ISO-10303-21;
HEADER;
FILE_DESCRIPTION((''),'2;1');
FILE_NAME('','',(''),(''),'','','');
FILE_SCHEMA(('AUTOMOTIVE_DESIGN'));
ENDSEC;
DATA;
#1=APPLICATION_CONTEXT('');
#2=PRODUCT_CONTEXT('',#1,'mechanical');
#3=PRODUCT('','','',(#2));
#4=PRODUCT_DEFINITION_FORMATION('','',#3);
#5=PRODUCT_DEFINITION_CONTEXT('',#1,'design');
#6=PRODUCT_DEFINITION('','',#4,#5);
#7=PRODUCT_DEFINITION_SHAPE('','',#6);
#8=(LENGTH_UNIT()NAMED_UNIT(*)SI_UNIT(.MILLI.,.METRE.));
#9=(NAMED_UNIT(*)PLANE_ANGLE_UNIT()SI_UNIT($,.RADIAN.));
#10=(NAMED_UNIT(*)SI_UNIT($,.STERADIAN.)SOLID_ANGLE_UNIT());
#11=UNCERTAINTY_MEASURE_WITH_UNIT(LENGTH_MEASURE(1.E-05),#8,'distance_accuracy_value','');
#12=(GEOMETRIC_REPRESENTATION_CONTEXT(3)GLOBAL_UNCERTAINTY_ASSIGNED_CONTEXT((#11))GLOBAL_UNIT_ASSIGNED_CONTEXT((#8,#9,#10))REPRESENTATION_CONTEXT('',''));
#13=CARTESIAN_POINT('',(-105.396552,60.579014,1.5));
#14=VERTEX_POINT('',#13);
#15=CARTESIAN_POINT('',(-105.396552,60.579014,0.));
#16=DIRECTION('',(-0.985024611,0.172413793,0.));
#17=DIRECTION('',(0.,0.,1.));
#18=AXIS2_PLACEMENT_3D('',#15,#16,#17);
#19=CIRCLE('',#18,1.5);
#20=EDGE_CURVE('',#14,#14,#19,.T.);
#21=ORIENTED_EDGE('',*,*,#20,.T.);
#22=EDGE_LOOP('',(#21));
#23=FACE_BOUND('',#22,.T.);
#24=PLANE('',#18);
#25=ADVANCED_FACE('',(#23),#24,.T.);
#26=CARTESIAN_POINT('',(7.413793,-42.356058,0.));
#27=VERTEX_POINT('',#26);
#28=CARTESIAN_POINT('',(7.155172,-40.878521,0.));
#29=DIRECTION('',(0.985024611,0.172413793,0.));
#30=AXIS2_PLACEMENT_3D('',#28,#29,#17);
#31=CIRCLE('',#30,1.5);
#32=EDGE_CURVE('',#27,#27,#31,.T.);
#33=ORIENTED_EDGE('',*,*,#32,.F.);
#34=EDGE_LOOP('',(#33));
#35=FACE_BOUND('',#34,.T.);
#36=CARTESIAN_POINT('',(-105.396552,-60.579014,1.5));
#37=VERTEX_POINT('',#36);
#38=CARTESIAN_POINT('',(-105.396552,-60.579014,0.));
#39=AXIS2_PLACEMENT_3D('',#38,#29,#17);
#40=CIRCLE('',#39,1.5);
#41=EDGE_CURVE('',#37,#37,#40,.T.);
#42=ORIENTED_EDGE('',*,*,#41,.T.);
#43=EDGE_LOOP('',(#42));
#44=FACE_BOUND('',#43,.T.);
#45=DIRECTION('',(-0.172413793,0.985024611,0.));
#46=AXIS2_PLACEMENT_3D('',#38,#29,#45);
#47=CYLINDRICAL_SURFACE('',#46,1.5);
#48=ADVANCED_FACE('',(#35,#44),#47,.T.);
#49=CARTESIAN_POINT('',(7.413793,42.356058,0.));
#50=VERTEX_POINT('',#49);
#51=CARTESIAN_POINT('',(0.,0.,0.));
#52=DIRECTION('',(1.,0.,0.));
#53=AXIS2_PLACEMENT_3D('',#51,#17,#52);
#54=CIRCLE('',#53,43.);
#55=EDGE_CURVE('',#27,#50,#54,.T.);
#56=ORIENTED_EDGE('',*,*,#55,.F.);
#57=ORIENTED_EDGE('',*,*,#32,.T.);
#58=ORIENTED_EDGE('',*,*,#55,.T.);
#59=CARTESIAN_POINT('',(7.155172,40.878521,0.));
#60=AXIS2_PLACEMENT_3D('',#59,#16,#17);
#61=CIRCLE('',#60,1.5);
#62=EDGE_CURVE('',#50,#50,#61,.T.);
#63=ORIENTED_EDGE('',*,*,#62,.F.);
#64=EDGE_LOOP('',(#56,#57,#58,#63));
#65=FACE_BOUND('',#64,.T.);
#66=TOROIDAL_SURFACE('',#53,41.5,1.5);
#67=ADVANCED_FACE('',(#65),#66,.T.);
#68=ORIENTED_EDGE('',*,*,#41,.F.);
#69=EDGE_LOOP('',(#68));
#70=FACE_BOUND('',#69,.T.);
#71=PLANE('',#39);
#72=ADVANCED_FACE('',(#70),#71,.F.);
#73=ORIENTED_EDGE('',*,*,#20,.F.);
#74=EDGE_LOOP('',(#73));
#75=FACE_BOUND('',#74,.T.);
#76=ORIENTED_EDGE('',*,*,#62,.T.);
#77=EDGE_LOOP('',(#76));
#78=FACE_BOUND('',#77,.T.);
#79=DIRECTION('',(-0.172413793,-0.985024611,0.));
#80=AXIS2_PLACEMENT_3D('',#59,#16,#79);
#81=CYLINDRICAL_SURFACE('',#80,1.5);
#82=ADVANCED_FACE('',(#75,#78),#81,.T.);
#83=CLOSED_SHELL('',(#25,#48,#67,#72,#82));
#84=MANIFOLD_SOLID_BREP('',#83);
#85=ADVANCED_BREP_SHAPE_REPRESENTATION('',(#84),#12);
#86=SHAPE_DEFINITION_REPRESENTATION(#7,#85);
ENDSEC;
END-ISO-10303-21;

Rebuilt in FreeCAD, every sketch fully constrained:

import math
import FreeCAD as App
import Part
import Sketcher

V = App.Vector

doc = App.newDocument("Part")
params = doc.addObject("Spreadsheet::Sheet", "Params")
for row, (alias, value) in enumerate([
    ("sketch1_diameter", "3 mm"),
    ("sketch2_radius", "40 mm"),
], start=1):
    params.set(f"A{row}", alias)
    params.set(f"B{row}", "=" + value)
    params.setAlias(f"B{row}", alias)

body = doc.addObject("PartDesign::Body", "Body")

# Sketch on XZ plane
sketch1 = body.newObject("Sketcher::SketchObject", "Sketch")
sketch1.AttachmentSupport = (doc.getObject("XZ_Plane"), [""])
sketch1.MapMode = "FlatFace"
sketch1.addGeometry(Part.Circle(V(41.5, 0, 0), V(0, 0, 1), 1.5), False)
sketch1.addConstraint(Sketcher.Constraint("PointOnObject", 0, 3, -1))
sketch1.addConstraint(Sketcher.Constraint("Diameter", 0, 3.0))
sketch1.addConstraint(Sketcher.Constraint("DistanceX", -1, 1, 0, 3, 41.5))
sketch1.setExpression("Constraints[1]", "Params.sketch1_diameter")

# Sketch on XY plane
sketch2 = body.newObject("Sketcher::SketchObject", "Sketch001")
sketch2.AttachmentSupport = (doc.getObject("XY_Plane"), [""])
sketch2.MapMode = "FlatFace"
sketch2.addGeometry(Part.LineSegment(V(-105.655172, -59.101477, 0), V(6.896552, -39.400984, 0)), False)
sketch2.addGeometry(Part.ArcOfCircle(Part.Circle(V(0, 0, 0), V(0, 0, 1), 40), math.radians(-80.071808), math.radians(80.071808)), False)
sketch2.addGeometry(Part.LineSegment(V(6.896552, 39.400984, 0), V(-105.655172, 59.101477, 0)), False)
sketch2.addConstraint(Sketcher.Constraint("Tangent", 0, 2, 1, 1))
sketch2.addConstraint(Sketcher.Constraint("Tangent", 1, 2, 2, 1))
sketch2.addConstraint(Sketcher.Constraint("Coincident", 1, 3, -1, 1))
sketch2.addConstraint(Sketcher.Constraint("Symmetric", 0, 1, 2, 2, -1))
sketch2.addConstraint(Sketcher.Constraint("Radius", 1, 40.0))
sketch2.addConstraint(Sketcher.Constraint("DistanceX", -1, 1, 0, 2, 6.896552))
sketch2.addConstraint(Sketcher.Constraint("DistanceY", 0, 1, 1, 2, 98.502461))
sketch2.setExpression("Constraints[4]", "Params.sketch2_radius")
doc.recompute()

additivepipe = body.newObject("PartDesign::AdditivePipe", "AdditivePipe")
additivepipe.Profile = sketch1
additivepipe.Spine = (sketch2, ["Edge1", "Edge2", "Edge3"])

doc.recompute()
